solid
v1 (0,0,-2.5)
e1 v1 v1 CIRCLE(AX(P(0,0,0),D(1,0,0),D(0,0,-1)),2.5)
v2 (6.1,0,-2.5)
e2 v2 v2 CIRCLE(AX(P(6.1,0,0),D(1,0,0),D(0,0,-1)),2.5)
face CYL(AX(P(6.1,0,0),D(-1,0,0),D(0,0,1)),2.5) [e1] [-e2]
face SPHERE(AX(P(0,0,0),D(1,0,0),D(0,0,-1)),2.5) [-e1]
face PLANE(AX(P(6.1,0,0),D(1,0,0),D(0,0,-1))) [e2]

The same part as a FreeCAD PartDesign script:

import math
import FreeCAD as App
import Part
import Sketcher

doc = App.newDocument("Part")
body = doc.addObject("PartDesign::Body", "Body")

# Sketch on YZ plane
sketch1 = body.newObject("Sketcher::SketchObject", "Sketch")
sketch1.AttachmentSupport = (doc.getObject("YZ_Plane"), [""])
sketch1.MapMode = "FlatFace"
sketch1.addGeometry([
    Part.LineSegment(App.Vector(2.5, 0, 0), App.Vector(-2.5, 0, 0)),
    Part.ArcOfCircle(Part.Circle(App.Vector(0, 0, 0), App.Vector(0, 0, 1), 2.5), math.radians(180), math.radians(360)),
], False)
sketch1.addConstraint([
    Sketcher.Constraint("Coincident", 0, 1, 1, 2),
    Sketcher.Constraint("Coincident", 1, 1, 0, 2),
    Sketcher.Constraint("Horizontal", 0),
    Sketcher.Constraint("Coincident", 1, 3, -1, 1),
    Sketcher.Constraint("PointOnObject", 0, 1, -1),
    Sketcher.Constraint("Radius", 1, 2.5),
])
revolution = body.newObject("PartDesign::Revolution", "Revolution")
revolution.Profile = sketch1
revolution.ReferenceAxis = (sketch1, ["H_Axis"])
revolution.Angle = 180

# Sketch on YZ plane
sketch2 = body.newObject("Sketcher::SketchObject", "Sketch001")
sketch2.AttachmentSupport = (doc.getObject("YZ_Plane"), [""])
sketch2.MapMode = "FlatFace"
sketch2.addGeometry(Part.Circle(App.Vector(0, 0, 0), App.Vector(0, 0, 1), 2.5), False)
sketch2.addConstraint([
    Sketcher.Constraint("Coincident", 0, 3, -1, 1),
    Sketcher.Constraint("Diameter", 0, 5.0),
])
pad1 = body.newObject("PartDesign::Pad", "Pad")
pad1.Profile = sketch2
pad1.Length = 6.1

doc.recompute()
